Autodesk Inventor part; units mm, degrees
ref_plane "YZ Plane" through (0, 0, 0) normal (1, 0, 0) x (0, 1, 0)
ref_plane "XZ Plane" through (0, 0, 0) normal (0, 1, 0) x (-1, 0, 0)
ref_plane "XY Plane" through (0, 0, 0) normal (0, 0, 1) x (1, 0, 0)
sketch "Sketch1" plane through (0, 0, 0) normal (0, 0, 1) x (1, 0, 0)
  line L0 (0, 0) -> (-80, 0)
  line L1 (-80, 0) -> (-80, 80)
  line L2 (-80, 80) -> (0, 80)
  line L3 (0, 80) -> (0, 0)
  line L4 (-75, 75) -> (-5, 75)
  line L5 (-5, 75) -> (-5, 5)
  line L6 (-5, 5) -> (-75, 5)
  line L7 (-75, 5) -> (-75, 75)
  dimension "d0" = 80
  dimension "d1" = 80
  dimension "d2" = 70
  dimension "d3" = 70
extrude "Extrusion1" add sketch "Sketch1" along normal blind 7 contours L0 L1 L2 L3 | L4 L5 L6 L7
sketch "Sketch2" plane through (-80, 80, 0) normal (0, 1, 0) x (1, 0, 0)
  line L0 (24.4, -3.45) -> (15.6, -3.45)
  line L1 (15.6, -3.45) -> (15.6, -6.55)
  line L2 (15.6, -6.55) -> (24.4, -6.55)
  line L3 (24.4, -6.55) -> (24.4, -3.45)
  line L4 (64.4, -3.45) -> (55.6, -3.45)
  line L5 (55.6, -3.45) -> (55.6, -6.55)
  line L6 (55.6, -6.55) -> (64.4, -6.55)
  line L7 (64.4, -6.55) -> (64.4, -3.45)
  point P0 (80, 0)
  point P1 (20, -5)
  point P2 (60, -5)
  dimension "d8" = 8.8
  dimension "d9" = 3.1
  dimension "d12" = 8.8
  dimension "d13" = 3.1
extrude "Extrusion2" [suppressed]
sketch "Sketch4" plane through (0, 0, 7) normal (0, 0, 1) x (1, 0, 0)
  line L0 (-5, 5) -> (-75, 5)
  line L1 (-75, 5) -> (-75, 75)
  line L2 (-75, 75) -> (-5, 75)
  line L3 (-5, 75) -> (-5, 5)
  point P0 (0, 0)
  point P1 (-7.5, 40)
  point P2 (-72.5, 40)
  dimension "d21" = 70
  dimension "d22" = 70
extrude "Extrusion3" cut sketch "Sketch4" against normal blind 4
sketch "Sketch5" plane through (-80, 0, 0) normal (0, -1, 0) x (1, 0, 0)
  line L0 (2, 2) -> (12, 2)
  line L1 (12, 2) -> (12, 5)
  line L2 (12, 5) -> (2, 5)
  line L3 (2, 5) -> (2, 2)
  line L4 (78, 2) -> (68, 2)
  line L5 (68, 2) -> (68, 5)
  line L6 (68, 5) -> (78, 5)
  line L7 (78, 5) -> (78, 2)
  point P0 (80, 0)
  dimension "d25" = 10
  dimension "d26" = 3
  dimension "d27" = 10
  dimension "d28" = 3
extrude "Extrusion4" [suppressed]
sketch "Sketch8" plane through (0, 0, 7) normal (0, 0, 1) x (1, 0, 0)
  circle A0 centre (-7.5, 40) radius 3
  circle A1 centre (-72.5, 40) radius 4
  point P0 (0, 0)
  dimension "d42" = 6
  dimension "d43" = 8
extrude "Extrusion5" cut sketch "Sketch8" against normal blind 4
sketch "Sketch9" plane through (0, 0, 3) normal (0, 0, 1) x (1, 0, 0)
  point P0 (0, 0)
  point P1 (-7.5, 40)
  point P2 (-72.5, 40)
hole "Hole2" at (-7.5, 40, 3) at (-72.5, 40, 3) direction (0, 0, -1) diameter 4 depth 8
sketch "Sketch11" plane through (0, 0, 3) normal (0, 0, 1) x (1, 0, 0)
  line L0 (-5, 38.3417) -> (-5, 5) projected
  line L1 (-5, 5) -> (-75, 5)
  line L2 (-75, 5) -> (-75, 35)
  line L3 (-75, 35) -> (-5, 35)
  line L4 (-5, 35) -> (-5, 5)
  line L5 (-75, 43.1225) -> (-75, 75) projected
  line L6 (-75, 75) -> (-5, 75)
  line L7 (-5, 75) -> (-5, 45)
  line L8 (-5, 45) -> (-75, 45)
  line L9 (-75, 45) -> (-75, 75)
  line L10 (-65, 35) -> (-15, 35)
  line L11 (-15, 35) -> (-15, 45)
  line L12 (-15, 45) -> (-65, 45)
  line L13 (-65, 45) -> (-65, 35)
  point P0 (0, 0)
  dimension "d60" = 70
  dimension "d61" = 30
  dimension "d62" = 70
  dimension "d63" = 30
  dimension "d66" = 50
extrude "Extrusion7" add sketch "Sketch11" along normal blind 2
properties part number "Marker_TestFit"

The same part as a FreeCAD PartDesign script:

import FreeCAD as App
import Part
import Sketcher
from FreeCAD import Vector

doc = App.newDocument("Part")
body = doc.addObject("PartDesign::Body", "Body")

# Sketch on XY plane
sketch1 = body.newObject("Sketcher::SketchObject", "Sketch")
sketch1.AttachmentSupport = (doc.getObject("XY_Plane"), [""])
sketch1.MapMode = "FlatFace"
sketch1.addGeometry([
    Part.LineSegment(Vector(-80, 0, 0), Vector(0, 0, 0)),
    Part.LineSegment(Vector(0, 0, 0), Vector(0, 80, 0)),
    Part.LineSegment(Vector(0, 80, 0), Vector(-80, 80, 0)),
    Part.LineSegment(Vector(-80, 80, 0), Vector(-80, 0, 0)),
], False)
sketch1.addConstraint([
    Sketcher.Constraint("Coincident", 0, 2, 1, 1),
    Sketcher.Constraint("Coincident", 1, 2, 2, 1),
    Sketcher.Constraint("Coincident", 2, 2, 3, 1),
    Sketcher.Constraint("Coincident", 3, 2, 0, 1),
    Sketcher.Constraint("Horizontal", 0),
    Sketcher.Constraint("Vertical", 1),
    Sketcher.Constraint("Horizontal", 2),
    Sketcher.Constraint("Vertical", 3),
    Sketcher.Constraint("Coincident", 0, 2, -1, 1),
    Sketcher.Constraint("Equal", 2, 1),
    Sketcher.Constraint("DistanceX", 0, 1, 0, 2, 80.0),
])
pad1 = body.newObject("PartDesign::Pad", "Pad")
pad1.Profile = sketch1
pad1.Length = 7

# Sketch on XY plane
sketch2 = body.newObject("Sketcher::SketchObject", "Sketch001")
sketch2.AttachmentSupport = (doc.getObject("XY_Plane"), [""])
sketch2.MapMode = "FlatFace"
sketch2.AttachmentOffset = App.Placement(Vector(0, 0, 7), App.Rotation())
sketch2.addGeometry([
    Part.LineSegment(Vector(-75, 5, 0), Vector(-5, 5, 0)),
    Part.LineSegment(Vector(-5, 5, 0), Vector(-5, 75, 0)),
    Part.LineSegment(Vector(-5, 75, 0), Vector(-75, 75, 0)),
    Part.LineSegment(Vector(-75, 75, 0), Vector(-75, 5, 0)),
], False)
sketch2.addConstraint([
    Sketcher.Constraint("Coincident", 0, 2, 1, 1),
    Sketcher.Constraint("Coincident", 1, 2, 2, 1),
    Sketcher.Constraint("Coincident", 2, 2, 3, 1),
    Sketcher.Constraint("Coincident", 3, 2, 0, 1),
    Sketcher.Constraint("Horizontal", 0),
    Sketcher.Constraint("Vertical", 1),
    Sketcher.Constraint("Horizontal", 2),
    Sketcher.Constraint("Vertical", 3),
    Sketcher.Constraint("Equal", 2, 1),
    Sketcher.Constraint("DistanceX", 0, 1, 0, 2, 70.0),
    Sketcher.Constraint("DistanceX", 0, 2, -1, 1, 5.0),
    Sketcher.Constraint("DistanceY", -1, 1, 0, 2, 5.0),
])
pocket1 = body.newObject("PartDesign::Pocket", "Pocket")
pocket1.Profile = sketch2
pocket1.Length = 4

# Sketch on XY plane
sketch3 = body.newObject("Sketcher::SketchObject", "Sketch002")
sketch3.AttachmentSupport = (doc.getObject("XY_Plane"), [""])
sketch3.MapMode = "FlatFace"
sketch3.AttachmentOffset = App.Placement(Vector(0, 0, 7), App.Rotation())
sketch3.addGeometry([
    Part.Circle(Vector(-7.5, 40, 0), Vector(0, 0, 1), 3),
    Part.Circle(Vector(-72.5, 40, 0), Vector(0, 0, 1), 4),
], False)
sketch3.addConstraint([
    Sketcher.Constraint("Horizontal", 0, 3, 1, 3),
    Sketcher.Constraint("Diameter", 0, 6.0),
    Sketcher.Constraint("Diameter", 1, 8.0),
    Sketcher.Constraint("DistanceY", -1, 1, 0, 3, 40.0),
    Sketcher.Constraint("DistanceX", 1, 3, 0, 3, 65.0),
    Sketcher.Constraint("DistanceX", 0, 3, -1, 1, 7.5),
])
pocket2 = body.newObject("PartDesign::Pocket", "Pocket001")
pocket2.Profile = sketch3
pocket2.Length = 4

# Sketch on XY plane
sketch4 = body.newObject("Sketcher::SketchObject", "Sketch003")
sketch4.AttachmentSupport = (doc.getObject("XY_Plane"), [""])
sketch4.MapMode = "FlatFace"
sketch4.AttachmentOffset = App.Placement(Vector(0, 0, 3), App.Rotation())
sketch4.addGeometry([
    Part.Circle(Vector(-7.5, 40, 0), Vector(0, 0, 1), 2),
    Part.Circle(Vector(-72.5, 40, 0), Vector(0, 0, 1), 2),
], False)
sketch4.addConstraint([
    Sketcher.Constraint("Equal", 0, 1),
    Sketcher.Constraint("Horizontal", 0, 3, 1, 3),
    Sketcher.Constraint("Diameter", 0, 4.0),
    Sketcher.Constraint("DistanceY", -1, 1, 0, 3, 40.0),
    Sketcher.Constraint("DistanceX", 1, 3, 0, 3, 65.0),
    Sketcher.Constraint("DistanceX", 0, 3, -1, 1, 7.5),
])
doc.recompute()
hole = body.newObject("PartDesign::Hole", "Hole")
hole.Profile = sketch4
hole.ThreadType = "None"
hole.Diameter = 4
hole.DepthType = "Dimension"
hole.Depth = 8
hole.DrillPoint = "Flat"

# Sketch on XY plane
sketch5 = body.newObject("Sketcher::SketchObject", "Sketch004")
sketch5.AttachmentSupport = (doc.getObject("XY_Plane"), [""])
sketch5.MapMode = "FlatFace"
sketch5.AttachmentOffset = App.Placement(Vector(0, 0, 3), App.Rotation())
sketch5.addGeometry([
    Part.LineSegment(Vector(-5, 5, 0), Vector(-5, 35, 0)),  # 0
    Part.LineSegment(Vector(-5, 35, 0), Vector(-15, 35, 0)),  # 1
    Part.LineSegment(Vector(-15, 35, 0), Vector(-15, 45, 0)),  # 2
    Part.LineSegment(Vector(-15, 45, 0), Vector(-5, 45, 0)),  # 3
    Part.LineSegment(Vector(-5, 45, 0), Vector(-5, 75, 0)),  # 4
    Part.LineSegment(Vector(-5, 75, 0), Vector(-75, 75, 0)),  # 5
    Part.LineSegment(Vector(-75, 75, 0), Vector(-75, 45, 0)),  # 6
    Part.LineSegment(Vector(-75, 45, 0), Vector(-65, 45, 0)),  # 7
    Part.LineSegment(Vector(-65, 45, 0), Vector(-65, 35, 0)),  # 8
    Part.LineSegment(Vector(-65, 35, 0), Vector(-75, 35, 0)),  # 9
    Part.LineSegment(Vector(-75, 35, 0), Vector(-75, 5, 0)),  # 10
    Part.LineSegment(Vector(-75, 5, 0), Vector(-5, 5, 0)),  # 11
], False)
sketch5.addConstraint([
    Sketcher.Constraint("Coincident", 0, 2, 1, 1),
    Sketcher.Constraint("Coincident", 1, 2, 2, 1),
    Sketcher.Constraint("Coincident", 2, 2, 3, 1),
    Sketcher.Constraint("Coincident", 3, 2, 4, 1),
    Sketcher.Constraint("Coincident", 4, 2, 5, 1),
    Sketcher.Constraint("Coincident", 5, 2, 6, 1),
    Sketcher.Constraint("Coincident", 6, 2, 7, 1),
    Sketcher.Constraint("Coincident", 7, 2, 8, 1),
    Sketcher.Constraint("Coincident", 8, 2, 9, 1),
    Sketcher.Constraint("Coincident", 9, 2, 10, 1),
    Sketcher.Constraint("Coincident", 10, 2, 11, 1),
    Sketcher.Constraint("Coincident", 11, 2, 0, 1),
    Sketcher.Constraint("Vertical", 0),
    Sketcher.Constraint("Horizontal", 1),
    Sketcher.Constraint("Vertical", 2),
    Sketcher.Constraint("Horizontal", 3),
    Sketcher.Constraint("Vertical", 4),
    Sketcher.Constraint("Horizontal", 5),
    Sketcher.Constraint("Vertical", 6),
    Sketcher.Constraint("Horizontal", 7),
    Sketcher.Constraint("Vertical", 8),
    Sketcher.Constraint("Horizontal", 9),
    Sketcher.Constraint("Vertical", 10),
    Sketcher.Constraint("Horizontal", 11),
    Sketcher.Constraint("Horizontal", 3, 2, 6, 2),
    Sketcher.Constraint("Horizontal", 1, 2, 8, 2),
    Sketcher.Constraint("Vertical", 0, 2, 3, 2),
    Sketcher.Constraint("Vertical", 6, 2, 9, 2),
    Sketcher.Constraint("Equal", 3, 7),
    Sketcher.Constraint("Equal", 9, 2),
    Sketcher.Constraint("Equal", 0, 4),
    Sketcher.Constraint("DistanceX", 5, 2, 5, 1, 70.0),
    Sketcher.Constraint("DistanceY", 0, 1, 0, 2, 30.0),
    Sketcher.Constraint("DistanceX", 7, 2, 2, 2, 50.0),
    Sketcher.Constraint("DistanceX", 0, 2, -1, 1, 5.0),
    Sketcher.Constraint("DistanceY", -1, 1, 0, 2, 35.0),
])
pad2 = body.newObject("PartDesign::Pad", "Pad001")
pad2.Profile = sketch5
pad2.Length = 2

doc.recompute()
